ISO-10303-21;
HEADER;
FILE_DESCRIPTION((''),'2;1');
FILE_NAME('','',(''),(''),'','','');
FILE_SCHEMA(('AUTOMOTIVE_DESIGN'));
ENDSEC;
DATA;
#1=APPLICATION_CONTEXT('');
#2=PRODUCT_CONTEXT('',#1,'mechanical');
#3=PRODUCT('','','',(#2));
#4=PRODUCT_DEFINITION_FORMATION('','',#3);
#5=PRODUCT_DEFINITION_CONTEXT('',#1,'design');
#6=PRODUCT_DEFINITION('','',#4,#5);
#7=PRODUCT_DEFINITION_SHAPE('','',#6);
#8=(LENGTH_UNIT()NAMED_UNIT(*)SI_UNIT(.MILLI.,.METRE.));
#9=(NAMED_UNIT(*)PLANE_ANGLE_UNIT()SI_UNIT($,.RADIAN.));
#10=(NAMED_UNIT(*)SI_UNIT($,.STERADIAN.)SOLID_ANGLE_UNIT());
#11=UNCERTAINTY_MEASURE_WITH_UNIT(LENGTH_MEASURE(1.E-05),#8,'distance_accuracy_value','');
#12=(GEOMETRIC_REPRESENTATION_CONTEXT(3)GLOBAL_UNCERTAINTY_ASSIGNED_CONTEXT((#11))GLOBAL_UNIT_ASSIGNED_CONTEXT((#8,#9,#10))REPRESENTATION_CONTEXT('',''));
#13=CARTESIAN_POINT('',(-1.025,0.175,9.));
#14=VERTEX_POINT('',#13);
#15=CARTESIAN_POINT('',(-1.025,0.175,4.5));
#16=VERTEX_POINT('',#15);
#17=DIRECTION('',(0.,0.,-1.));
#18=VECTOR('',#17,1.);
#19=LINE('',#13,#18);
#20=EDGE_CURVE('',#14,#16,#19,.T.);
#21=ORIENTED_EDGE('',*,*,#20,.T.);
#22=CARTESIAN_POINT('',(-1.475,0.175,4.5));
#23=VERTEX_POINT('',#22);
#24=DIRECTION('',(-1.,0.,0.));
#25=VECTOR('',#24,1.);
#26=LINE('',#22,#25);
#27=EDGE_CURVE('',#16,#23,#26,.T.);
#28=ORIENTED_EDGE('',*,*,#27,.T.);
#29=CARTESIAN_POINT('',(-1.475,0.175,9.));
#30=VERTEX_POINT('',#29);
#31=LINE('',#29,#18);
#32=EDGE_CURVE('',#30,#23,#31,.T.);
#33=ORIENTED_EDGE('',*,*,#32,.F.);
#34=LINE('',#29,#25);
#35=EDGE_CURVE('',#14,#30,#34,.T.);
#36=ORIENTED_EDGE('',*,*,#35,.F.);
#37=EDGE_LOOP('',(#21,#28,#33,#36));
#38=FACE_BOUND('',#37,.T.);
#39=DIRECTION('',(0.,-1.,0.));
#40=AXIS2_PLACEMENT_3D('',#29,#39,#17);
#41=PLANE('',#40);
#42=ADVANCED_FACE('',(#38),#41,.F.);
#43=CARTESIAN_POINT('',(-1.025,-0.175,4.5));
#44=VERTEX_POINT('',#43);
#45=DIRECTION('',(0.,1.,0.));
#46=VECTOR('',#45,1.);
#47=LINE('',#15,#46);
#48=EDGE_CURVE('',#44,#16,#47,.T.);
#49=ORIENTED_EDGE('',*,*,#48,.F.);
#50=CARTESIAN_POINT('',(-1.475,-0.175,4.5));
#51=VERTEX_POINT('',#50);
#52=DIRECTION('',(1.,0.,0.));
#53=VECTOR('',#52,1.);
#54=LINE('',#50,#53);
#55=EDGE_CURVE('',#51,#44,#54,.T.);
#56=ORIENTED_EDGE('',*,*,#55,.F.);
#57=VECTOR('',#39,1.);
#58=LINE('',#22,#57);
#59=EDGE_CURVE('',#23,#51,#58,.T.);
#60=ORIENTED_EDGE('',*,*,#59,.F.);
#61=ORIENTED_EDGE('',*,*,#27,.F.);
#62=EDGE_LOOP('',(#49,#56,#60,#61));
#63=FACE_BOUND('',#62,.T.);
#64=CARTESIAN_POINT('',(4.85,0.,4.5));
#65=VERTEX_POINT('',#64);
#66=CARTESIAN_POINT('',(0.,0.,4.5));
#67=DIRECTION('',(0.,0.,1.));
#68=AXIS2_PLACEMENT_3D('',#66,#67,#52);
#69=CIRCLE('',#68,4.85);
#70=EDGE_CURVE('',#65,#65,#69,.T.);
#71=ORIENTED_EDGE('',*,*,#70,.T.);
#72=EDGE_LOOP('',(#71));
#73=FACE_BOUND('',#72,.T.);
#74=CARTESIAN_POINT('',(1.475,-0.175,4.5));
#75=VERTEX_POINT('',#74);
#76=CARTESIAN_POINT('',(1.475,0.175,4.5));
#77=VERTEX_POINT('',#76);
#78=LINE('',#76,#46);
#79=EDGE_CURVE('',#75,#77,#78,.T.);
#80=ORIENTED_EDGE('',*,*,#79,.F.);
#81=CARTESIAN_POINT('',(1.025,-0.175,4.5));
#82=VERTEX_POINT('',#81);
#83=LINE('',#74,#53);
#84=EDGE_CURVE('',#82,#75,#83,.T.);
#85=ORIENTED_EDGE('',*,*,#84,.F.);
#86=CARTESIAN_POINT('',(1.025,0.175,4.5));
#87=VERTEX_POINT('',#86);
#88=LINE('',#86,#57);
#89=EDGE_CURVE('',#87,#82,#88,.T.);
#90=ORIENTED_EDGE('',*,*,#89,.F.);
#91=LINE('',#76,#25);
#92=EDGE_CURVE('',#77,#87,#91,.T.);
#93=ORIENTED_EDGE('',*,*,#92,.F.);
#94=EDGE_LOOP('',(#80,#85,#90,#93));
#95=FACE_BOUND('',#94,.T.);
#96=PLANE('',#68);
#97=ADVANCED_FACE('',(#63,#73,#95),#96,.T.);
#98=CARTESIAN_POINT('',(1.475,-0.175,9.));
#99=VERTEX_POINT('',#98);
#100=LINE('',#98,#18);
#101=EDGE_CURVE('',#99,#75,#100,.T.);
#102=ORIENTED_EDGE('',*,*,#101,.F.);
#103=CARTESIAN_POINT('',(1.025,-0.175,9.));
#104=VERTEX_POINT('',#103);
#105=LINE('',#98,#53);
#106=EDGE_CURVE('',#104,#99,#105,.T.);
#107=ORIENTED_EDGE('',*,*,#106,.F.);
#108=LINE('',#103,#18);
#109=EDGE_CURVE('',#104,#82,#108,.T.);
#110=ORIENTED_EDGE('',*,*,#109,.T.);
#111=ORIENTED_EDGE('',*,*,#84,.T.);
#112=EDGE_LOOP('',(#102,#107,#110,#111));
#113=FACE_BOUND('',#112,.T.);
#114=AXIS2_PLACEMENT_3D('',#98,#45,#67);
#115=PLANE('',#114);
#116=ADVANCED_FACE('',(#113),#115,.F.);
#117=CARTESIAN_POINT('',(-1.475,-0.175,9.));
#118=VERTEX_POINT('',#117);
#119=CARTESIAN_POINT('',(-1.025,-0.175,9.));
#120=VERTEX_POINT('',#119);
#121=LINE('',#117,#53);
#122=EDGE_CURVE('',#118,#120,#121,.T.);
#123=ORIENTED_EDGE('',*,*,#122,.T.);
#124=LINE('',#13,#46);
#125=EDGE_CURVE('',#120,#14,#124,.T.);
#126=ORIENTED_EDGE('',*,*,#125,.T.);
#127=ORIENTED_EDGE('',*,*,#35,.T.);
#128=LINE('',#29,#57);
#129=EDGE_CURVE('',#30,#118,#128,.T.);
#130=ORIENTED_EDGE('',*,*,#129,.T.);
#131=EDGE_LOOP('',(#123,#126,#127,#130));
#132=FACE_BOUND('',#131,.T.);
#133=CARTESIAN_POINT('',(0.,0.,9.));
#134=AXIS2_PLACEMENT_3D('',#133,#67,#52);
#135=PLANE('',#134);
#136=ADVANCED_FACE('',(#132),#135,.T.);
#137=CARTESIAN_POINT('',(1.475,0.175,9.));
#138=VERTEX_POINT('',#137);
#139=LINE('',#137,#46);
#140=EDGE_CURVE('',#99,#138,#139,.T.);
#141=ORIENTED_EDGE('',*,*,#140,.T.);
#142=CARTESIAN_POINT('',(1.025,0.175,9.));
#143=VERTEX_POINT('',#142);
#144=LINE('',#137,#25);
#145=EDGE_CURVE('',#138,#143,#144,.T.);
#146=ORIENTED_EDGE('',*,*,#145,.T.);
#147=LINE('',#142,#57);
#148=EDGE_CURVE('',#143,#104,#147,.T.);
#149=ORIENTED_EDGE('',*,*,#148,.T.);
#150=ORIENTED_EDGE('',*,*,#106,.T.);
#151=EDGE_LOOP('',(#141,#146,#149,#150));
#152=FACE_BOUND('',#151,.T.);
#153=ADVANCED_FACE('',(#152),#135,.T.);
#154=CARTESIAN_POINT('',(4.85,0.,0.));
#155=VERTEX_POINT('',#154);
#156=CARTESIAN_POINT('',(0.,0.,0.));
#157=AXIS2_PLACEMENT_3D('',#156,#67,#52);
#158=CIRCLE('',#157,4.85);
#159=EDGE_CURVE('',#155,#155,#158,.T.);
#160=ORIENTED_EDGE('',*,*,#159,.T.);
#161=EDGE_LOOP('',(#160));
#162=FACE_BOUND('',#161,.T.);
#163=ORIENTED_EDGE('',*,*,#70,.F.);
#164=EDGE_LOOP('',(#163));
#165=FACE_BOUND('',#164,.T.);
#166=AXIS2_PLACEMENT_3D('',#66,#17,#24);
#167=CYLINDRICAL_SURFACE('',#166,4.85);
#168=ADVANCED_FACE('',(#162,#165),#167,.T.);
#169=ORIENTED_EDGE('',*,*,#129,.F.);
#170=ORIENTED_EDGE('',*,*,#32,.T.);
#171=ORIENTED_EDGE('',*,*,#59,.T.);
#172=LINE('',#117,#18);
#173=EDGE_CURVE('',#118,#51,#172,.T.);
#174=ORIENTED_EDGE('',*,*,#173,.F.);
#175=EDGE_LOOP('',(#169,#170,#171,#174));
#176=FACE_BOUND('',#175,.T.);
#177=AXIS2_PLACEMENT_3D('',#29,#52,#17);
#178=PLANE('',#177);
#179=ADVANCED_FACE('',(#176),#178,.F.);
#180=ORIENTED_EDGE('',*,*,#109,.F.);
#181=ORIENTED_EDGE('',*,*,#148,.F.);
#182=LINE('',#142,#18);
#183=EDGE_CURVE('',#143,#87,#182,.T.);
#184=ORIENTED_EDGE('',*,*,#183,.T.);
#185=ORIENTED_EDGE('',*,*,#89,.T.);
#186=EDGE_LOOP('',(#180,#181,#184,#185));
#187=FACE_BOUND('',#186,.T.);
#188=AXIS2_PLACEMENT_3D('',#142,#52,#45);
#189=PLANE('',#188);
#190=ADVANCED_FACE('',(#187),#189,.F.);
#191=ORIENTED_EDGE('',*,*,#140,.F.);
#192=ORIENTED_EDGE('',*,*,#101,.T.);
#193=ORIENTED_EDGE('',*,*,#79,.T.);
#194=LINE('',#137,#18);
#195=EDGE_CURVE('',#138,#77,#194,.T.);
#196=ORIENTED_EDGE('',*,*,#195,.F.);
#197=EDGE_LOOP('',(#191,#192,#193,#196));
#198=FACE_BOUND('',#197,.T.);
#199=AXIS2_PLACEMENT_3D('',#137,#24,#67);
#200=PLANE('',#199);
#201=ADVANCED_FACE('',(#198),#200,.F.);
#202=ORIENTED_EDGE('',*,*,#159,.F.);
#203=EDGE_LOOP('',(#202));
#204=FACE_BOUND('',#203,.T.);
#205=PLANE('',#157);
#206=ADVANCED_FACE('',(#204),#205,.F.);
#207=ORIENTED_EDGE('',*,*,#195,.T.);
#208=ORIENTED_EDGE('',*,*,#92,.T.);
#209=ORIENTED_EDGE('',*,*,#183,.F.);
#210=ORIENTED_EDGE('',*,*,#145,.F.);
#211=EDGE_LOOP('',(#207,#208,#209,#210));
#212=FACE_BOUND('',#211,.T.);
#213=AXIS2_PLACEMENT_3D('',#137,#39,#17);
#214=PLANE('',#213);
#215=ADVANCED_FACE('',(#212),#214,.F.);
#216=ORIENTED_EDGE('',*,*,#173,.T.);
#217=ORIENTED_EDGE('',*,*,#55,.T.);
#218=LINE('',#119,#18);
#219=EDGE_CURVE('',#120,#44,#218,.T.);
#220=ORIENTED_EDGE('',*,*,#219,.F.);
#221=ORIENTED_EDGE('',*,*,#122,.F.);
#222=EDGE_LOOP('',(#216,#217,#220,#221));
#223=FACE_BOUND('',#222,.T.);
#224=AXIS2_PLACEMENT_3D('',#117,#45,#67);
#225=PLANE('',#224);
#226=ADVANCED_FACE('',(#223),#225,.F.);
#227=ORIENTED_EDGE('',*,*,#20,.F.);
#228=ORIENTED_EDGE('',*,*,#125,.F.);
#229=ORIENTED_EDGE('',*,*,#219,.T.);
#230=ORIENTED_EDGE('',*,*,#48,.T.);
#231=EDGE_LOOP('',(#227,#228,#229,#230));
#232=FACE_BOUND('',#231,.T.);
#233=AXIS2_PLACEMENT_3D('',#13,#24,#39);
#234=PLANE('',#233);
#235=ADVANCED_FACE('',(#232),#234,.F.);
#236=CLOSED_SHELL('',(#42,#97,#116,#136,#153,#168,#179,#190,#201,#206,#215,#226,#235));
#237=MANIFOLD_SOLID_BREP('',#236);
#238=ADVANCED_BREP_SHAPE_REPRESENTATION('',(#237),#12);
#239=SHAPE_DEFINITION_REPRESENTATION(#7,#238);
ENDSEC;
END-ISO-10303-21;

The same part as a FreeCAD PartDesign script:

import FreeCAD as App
import Part
import Sketcher
from FreeCAD import Vector

doc = App.newDocument("Part")
params = doc.addObject("Spreadsheet::Sheet", "Params")
for row, (alias, value) in enumerate([
    ("sketch1_diameter", "9.7 mm"),
    ("pad1_length", "4.5 mm"),
    ("sketch2_width", "0.45 mm"),
    ("sketch2_height", "0.35 mm"),
    ("pad2_length", "4.5 mm"),
], start=1):
    params.set(f"A{row}", alias)
    params.set(f"B{row}", "=" + value)
    params.setAlias(f"B{row}", alias)

body = doc.addObject("PartDesign::Body", "Body")

sketch1 = body.newObject("Sketcher::SketchObject", "Sketch")
sketch1.AttachmentSupport = (doc.getObject("XY_Plane"), [""])
sketch1.MapMode = "FlatFace"
sketch1.addGeometry(Part.Circle(Vector(0, 0, 0), Vector(0, 0, 1), 4.8), False)
sketch1.addConstraint([
    Sketcher.Constraint("Coincident", 0, 3, -1, 1),
    Sketcher.Constraint("Diameter", 0, 9.7),
])
sketch1.setExpression("Constraints[1]", "Params.sketch1_diameter")
pad1 = body.newObject("PartDesign::Pad", "Pad")
pad1.Profile = sketch1
pad1.setExpression("Length", "Params.pad1_length")

sketch2 = body.newObject("Sketcher::SketchObject", "Sketch001")
sketch2.AttachmentSupport = (doc.getObject("XY_Plane"), [""])
sketch2.MapMode = "FlatFace"
sketch2.AttachmentOffset = App.Placement(Vector(0, 0, 4.5), App.Rotation())
sketch2.addGeometry([
    Part.LineSegment(Vector(-1.48, 0.17, 0), Vector(-1.48, -0.17, 0)),
    Part.LineSegment(Vector(-1.48, -0.17, 0), Vector(-1.02, -0.17, 0)),
    Part.LineSegment(Vector(-1.02, -0.17, 0), Vector(-1.02, 0.17, 0)),
    Part.LineSegment(Vector(-1.02, 0.17, 0), Vector(-1.48, 0.17, 0)),
    Part.LineSegment(Vector(1.02, 0.17, 0), Vector(1.02, -0.17, 0)),
    Part.LineSegment(Vector(1.02, -0.17, 0), Vector(1.48, -0.17, 0)),
    Part.LineSegment(Vector(1.48, -0.17, 0), Vector(1.48, 0.17, 0)),
    Part.LineSegment(Vector(1.48, 0.17, 0), Vector(1.02, 0.17, 0)),
], False)
sketch2.addConstraint([
    Sketcher.Constraint("Coincident", 0, 2, 1, 1),
    Sketcher.Constraint("Coincident", 1, 2, 2, 1),
    Sketcher.Constraint("Coincident", 2, 2, 3, 1),
    Sketcher.Constraint("Coincident", 3, 2, 0, 1),
    Sketcher.Constraint("Coincident", 4, 2, 5, 1),
    Sketcher.Constraint("Coincident", 5, 2, 6, 1),
    Sketcher.Constraint("Coincident", 6, 2, 7, 1),
    Sketcher.Constraint("Coincident", 7, 2, 4, 1),
    Sketcher.Constraint("Vertical", 0),
    Sketcher.Constraint("Horizontal", 1),
    Sketcher.Constraint("Vertical", 2),
    Sketcher.Constraint("Horizontal", 3),
    Sketcher.Constraint("Vertical", 4),
    Sketcher.Constraint("Horizontal", 5),
    Sketcher.Constraint("Vertical", 6),
    Sketcher.Constraint("Horizontal", 7),
    Sketcher.Constraint("Symmetric", 2, 2, 4, 2, -1, 1),
    Sketcher.Constraint("Symmetric", 0, 2, 6, 2, -1, 1),
    Sketcher.Constraint("Horizontal", 1, 2, 4, 2),
    Sketcher.Constraint("DistanceX", 1, 1, 1, 2, 0.45),
    Sketcher.Constraint("DistanceY", 0, 2, 0, 1, 0.35),
    Sketcher.Constraint("DistanceX", 0, 2, 4, 2, 2.5),
])
sketch2.setExpression("Constraints[19]", "Params.sketch2_width")
sketch2.setExpression("Constraints[20]", "Params.sketch2_height")
pad2 = body.newObject("PartDesign::Pad", "Pad001")
pad2.Profile = sketch2
pad2.setExpression("Length", "Params.pad2_length")

doc.recompute()
